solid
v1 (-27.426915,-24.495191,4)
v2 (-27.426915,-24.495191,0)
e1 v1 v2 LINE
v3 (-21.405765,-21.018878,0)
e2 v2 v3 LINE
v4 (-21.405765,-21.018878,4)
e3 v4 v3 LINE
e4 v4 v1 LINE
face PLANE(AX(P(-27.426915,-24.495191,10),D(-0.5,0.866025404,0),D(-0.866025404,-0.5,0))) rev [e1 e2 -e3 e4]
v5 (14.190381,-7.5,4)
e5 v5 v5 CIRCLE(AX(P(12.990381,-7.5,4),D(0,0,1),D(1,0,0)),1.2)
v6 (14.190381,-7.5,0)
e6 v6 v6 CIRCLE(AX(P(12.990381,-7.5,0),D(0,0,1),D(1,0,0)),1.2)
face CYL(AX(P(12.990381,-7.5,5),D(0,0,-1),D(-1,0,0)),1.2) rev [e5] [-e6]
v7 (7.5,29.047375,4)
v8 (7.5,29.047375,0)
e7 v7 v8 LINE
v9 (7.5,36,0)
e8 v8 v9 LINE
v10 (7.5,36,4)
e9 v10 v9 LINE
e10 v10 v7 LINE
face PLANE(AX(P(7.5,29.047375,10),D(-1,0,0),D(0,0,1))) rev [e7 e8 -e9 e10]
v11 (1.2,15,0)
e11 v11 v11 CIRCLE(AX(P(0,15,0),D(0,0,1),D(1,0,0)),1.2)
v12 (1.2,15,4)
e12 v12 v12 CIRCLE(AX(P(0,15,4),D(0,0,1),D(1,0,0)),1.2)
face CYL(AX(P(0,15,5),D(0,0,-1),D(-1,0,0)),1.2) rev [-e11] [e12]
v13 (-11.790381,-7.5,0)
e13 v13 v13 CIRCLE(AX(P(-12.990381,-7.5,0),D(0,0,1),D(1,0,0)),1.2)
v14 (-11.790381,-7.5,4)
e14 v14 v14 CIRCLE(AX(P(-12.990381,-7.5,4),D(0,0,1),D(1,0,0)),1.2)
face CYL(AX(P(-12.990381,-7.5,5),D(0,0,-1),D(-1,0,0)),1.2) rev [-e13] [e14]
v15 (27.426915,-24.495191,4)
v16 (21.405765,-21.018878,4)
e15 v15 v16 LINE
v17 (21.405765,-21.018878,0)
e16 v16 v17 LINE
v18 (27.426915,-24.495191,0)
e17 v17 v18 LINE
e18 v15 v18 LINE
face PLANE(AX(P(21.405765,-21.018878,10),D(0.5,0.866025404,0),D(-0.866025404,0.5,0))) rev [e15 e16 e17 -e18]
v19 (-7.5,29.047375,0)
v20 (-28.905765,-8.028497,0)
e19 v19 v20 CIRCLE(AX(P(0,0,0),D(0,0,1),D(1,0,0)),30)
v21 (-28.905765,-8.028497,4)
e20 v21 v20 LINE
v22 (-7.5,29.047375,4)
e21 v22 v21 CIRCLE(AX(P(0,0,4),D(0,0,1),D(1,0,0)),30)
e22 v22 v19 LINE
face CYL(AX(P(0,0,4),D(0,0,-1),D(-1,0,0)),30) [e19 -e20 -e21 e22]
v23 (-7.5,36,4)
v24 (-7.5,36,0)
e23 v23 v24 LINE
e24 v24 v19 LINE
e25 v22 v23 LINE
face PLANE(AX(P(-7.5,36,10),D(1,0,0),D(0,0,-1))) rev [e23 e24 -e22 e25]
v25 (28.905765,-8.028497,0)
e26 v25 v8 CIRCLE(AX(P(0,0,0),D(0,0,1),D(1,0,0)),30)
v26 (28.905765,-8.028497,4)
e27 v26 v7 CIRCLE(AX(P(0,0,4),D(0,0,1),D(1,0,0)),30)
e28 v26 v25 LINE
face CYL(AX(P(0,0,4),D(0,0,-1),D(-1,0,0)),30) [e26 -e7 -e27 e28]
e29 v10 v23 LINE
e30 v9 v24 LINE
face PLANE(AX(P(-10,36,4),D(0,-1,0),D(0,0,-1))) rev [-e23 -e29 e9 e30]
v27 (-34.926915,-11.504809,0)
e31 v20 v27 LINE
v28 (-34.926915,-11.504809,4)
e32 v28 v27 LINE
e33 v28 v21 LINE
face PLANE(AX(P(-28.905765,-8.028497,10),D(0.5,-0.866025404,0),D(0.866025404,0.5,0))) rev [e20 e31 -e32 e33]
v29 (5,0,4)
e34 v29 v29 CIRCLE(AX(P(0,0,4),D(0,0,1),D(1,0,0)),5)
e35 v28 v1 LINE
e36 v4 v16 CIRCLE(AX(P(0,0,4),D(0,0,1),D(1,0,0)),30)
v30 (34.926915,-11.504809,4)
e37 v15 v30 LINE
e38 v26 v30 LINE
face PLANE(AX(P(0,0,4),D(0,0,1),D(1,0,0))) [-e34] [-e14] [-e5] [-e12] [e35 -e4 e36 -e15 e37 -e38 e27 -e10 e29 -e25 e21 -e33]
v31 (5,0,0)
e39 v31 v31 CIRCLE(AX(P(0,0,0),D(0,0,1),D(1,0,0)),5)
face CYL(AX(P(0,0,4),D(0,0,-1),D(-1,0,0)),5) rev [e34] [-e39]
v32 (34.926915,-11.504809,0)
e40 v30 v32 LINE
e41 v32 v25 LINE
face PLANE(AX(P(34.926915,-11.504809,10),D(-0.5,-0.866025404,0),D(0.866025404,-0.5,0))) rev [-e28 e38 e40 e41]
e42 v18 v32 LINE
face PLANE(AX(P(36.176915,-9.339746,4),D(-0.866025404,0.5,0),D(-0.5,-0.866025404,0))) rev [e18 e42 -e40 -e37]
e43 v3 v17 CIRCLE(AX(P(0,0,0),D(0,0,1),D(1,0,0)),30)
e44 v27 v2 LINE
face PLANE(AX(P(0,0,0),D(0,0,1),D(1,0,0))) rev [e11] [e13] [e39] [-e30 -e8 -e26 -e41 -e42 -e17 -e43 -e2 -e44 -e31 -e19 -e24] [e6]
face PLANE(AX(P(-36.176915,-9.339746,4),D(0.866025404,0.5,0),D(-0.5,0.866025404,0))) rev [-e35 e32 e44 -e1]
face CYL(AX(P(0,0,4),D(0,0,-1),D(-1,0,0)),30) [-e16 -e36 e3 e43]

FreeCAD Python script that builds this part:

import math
import FreeCAD as App
import Part
import Sketcher
Q = App.Units.Quantity

doc = App.newDocument("Part")
body = doc.addObject("PartDesign::Body", "Body")

sketch1 = doc.addObject("Sketcher::SketchObject", "Sketch")
body.addObject(sketch1)
sketch1.AttachmentSupport = (doc.XY_Plane, [""])
sketch1.MapMode = "FlatFace"
sketch1.addGeometry([
    Part.LineSegment(App.Vector(10, 28, 0), App.Vector(10, 36, 0)),
    Part.LineSegment(App.Vector(10, 36, 0), App.Vector(-10, 36, 0)),
    Part.LineSegment(App.Vector(-10, 36, 0), App.Vector(-10, 28, 0)),
    Part.ArcOfCircle(Part.Circle(App.Vector(0, 0, 0), App.Vector(0, 0, 1), 30), math.radians(109), math.radians(191)),
    Part.LineSegment(App.Vector(-29, -5, 0), App.Vector(-36, -9, 0)),
    Part.LineSegment(App.Vector(-36, -9, 0), App.Vector(-26, -27, 0)),
    Part.LineSegment(App.Vector(-26, -27, 0), App.Vector(-19, -23, 0)),
    Part.ArcOfCircle(Part.Circle(App.Vector(0, 0, 0), App.Vector(0, 0, 1), 30), math.radians(-131), math.radians(-49)),
    Part.LineSegment(App.Vector(19, -23, 0), App.Vector(26, -27, 0)),
    Part.LineSegment(App.Vector(26, -27, 0), App.Vector(36, -9, 0)),
    Part.LineSegment(App.Vector(36, -9, 0), App.Vector(29, -5, 0)),
    Part.ArcOfCircle(Part.Circle(App.Vector(0, 0, 0), App.Vector(0, 0, 1), 30), math.radians(-11), math.radians(71)),
    Part.Circle(App.Vector(0, 0, 0), App.Vector(0, 0, 1), 5),
], False)
sketch1.addConstraint([
    Sketcher.Constraint("Coincident", 0, 2, 1, 1),
    Sketcher.Constraint("Coincident", 1, 2, 2, 1),
    Sketcher.Constraint("Coincident", 2, 2, 3, 1),
    Sketcher.Constraint("Coincident", 3, 2, 4, 1),
    Sketcher.Constraint("Coincident", 4, 2, 5, 1),
    Sketcher.Constraint("Coincident", 5, 2, 6, 1),
    Sketcher.Constraint("Coincident", 6, 2, 7, 1),
    Sketcher.Constraint("Coincident", 7, 2, 8, 1),
    Sketcher.Constraint("Coincident", 8, 2, 9, 1),
    Sketcher.Constraint("Coincident", 9, 2, 10, 1),
    Sketcher.Constraint("Coincident", 10, 2, 11, 1),
    Sketcher.Constraint("Coincident", 11, 2, 0, 1),
    Sketcher.Constraint("Vertical", 0),
    Sketcher.Constraint("Horizontal", 1),
    Sketcher.Constraint("Vertical", 2),
    Sketcher.Constraint("Coincident", 3, 3, -1, 1),
    Sketcher.Constraint("Coincident", 7, 3, -1, 1),
    Sketcher.Constraint("Coincident", 11, 3, -1, 1),
    Sketcher.Constraint("Coincident", 12, 3, -1, 1),
    Sketcher.Constraint("Equal", 3, 7),
    Sketcher.Constraint("Equal", 7, 11),
    Sketcher.Constraint("Symmetric", 5, 2, 8, 2, -2),
    Sketcher.Constraint("Symmetric", 4, 2, 9, 2, -2),
    Sketcher.Constraint("Perpendicular", 4, 5),
    Sketcher.Constraint("Perpendicular", 5, 6),
    Sketcher.Constraint("Perpendicular", 8, 9),
    Sketcher.Constraint("Perpendicular", 9, 10),
    Sketcher.Constraint("Horizontal", 2, 2, 11, 2),
    Sketcher.Constraint("Equal", 4, 6),
    Sketcher.Constraint("Diameter", 12, Q("10 mm")),
    Sketcher.Constraint("Radius", 3, Q("30 mm")),
    Sketcher.Constraint("DistanceX", 1, 2, 1, 1, Q("20 mm")),
    Sketcher.Constraint("Angle", 4, Q("-150 deg")),
    Sketcher.Constraint("Distance", 5, Q("20 mm")),
    Sketcher.Constraint("DistanceY", -1, 1, 0, 2, Q("36 mm")),
    Sketcher.Constraint("Distance", 4, Q("7.715729 mm")),
])
pad1 = doc.addObject("PartDesign::Pad", "Pad")
body.addObject(pad1)
pad1.Profile = sketch1
pad1.Length = 4

sketch2 = doc.addObject("Sketcher::SketchObject", "Sketch001")
body.addObject(sketch2)
sketch2.AttachmentSupport = (doc.XY_Plane, [""])
sketch2.MapMode = "FlatFace"
sketch2.addGeometry([
    Part.LineSegment(App.Vector(7.5, 29, 0), App.Vector(7.5, 36, 0)),
    Part.LineSegment(App.Vector(7.5, 36, 0), App.Vector(10, 36, 0)),
    Part.LineSegment(App.Vector(10, 36, 0), App.Vector(10, 28.3, 0)),
    Part.ArcOfCircle(Part.Circle(App.Vector(0, 0, 0), App.Vector(0, 0, 1), 30), math.radians(70.53), math.radians(75.52)),
    Part.LineSegment(App.Vector(-7.5, 36, 0), App.Vector(-7.5, 29, 0)),
    Part.ArcOfCircle(Part.Circle(App.Vector(0, 0, 0), App.Vector(0, 0, 1), 30), math.radians(104.48), math.radians(109.47)),
    Part.LineSegment(App.Vector(-10, 28.3, 0), App.Vector(-10, 36, 0)),
    Part.LineSegment(App.Vector(-10, 36, 0), App.Vector(-7.5, 36, 0)),
    Part.LineSegment(App.Vector(34.9, -11.5, 0), App.Vector(28.9, -8, 0)),
    Part.ArcOfCircle(Part.Circle(App.Vector(0, 0, 0), App.Vector(0, 0, 1), 30), math.radians(-15.52), math.radians(-10.53)),
    Part.LineSegment(App.Vector(29.5, -5.5, 0), App.Vector(36.2, -9.3, 0)),
    Part.LineSegment(App.Vector(36.2, -9.3, 0), App.Vector(34.9, -11.5, 0)),
    Part.LineSegment(App.Vector(27.4, -24.5, 0), App.Vector(26.2, -26.7, 0)),
    Part.LineSegment(App.Vector(26.2, -26.7, 0), App.Vector(19.5, -22.8, 0)),
    Part.ArcOfCircle(Part.Circle(App.Vector(0, 0, 0), App.Vector(0, 0, 1), 30), math.radians(-49.47), math.radians(-44.48)),
    Part.LineSegment(App.Vector(21.4, -21, 0), App.Vector(27.4, -24.5, 0)),
    Part.LineSegment(App.Vector(-34.9, -11.5, 0), App.Vector(-36.2, -9.3, 0)),
    Part.LineSegment(App.Vector(-36.2, -9.3, 0), App.Vector(-29.5, -5.5, 0)),
    Part.ArcOfCircle(Part.Circle(App.Vector(0, 0, 0), App.Vector(0, 0, 1), 30), math.radians(-169.47), math.radians(-164.48)),
    Part.LineSegment(App.Vector(-28.9, -8, 0), App.Vector(-34.9, -11.5, 0)),
    Part.LineSegment(App.Vector(-27.4, -24.5, 0), App.Vector(-21.4, -21, 0)),
    Part.ArcOfCircle(Part.Circle(App.Vector(0, 0, 0), App.Vector(0, 0, 1), 30), math.radians(-135.52), math.radians(-130.53)),
    Part.LineSegment(App.Vector(-19.5, -22.8, 0), App.Vector(-26.2, -26.7, 0)),
    Part.LineSegment(App.Vector(-26.2, -26.7, 0), App.Vector(-27.4, -24.5, 0)),
], False)
sketch2.addConstraint([
    Sketcher.Constraint("Coincident", 0, 2, 1, 1),
    Sketcher.Constraint("Coincident", 1, 2, 2, 1),
    Sketcher.Constraint("Coincident", 2, 2, 3, 1),
    Sketcher.Constraint("Coincident", 3, 2, 0, 1),
    Sketcher.Constraint("Coincident", 4, 2, 5, 1),
    Sketcher.Constraint("Coincident", 5, 2, 6, 1),
    Sketcher.Constraint("Coincident", 6, 2, 7, 1),
    Sketcher.Constraint("Coincident", 7, 2, 4, 1),
    Sketcher.Constraint("Coincident", 8, 2, 9, 1),
    Sketcher.Constraint("Coincident", 9, 2, 10, 1),
    Sketcher.Constraint("Coincident", 10, 2, 11, 1),
    Sketcher.Constraint("Coincident", 11, 2, 8, 1),
    Sketcher.Constraint("Coincident", 12, 2, 13, 1),
    Sketcher.Constraint("Coincident", 13, 2, 14, 1),
    Sketcher.Constraint("Coincident", 14, 2, 15, 1),
    Sketcher.Constraint("Coincident", 15, 2, 12, 1),
    Sketcher.Constraint("Coincident", 16, 2, 17, 1),
    Sketcher.Constraint("Coincident", 17, 2, 18, 1),
    Sketcher.Constraint("Coincident", 18, 2, 19, 1),
    Sketcher.Constraint("Coincident", 19, 2, 16, 1),
    Sketcher.Constraint("Coincident", 20, 2, 21, 1),
    Sketcher.Constraint("Coincident", 21, 2, 22, 1),
    Sketcher.Constraint("Coincident", 22, 2, 23, 1),
    Sketcher.Constraint("Coincident", 23, 2, 20, 1),
    Sketcher.Constraint("Vertical", 0),
    Sketcher.Constraint("Horizontal", 1),
    Sketcher.Constraint("Vertical", 2),
    Sketcher.Constraint("Vertical", 4),
    Sketcher.Constraint("Vertical", 6),
    Sketcher.Constraint("Horizontal", 7),
    Sketcher.Constraint("Coincident", 3, 3, -1, 1),
    Sketcher.Constraint("Coincident", 5, 3, -1, 1),
    Sketcher.Constraint("Coincident", 9, 3, -1, 1),
    Sketcher.Constraint("Coincident", 14, 3, -1, 1),
    Sketcher.Constraint("Coincident", 18, 3, -1, 1),
    Sketcher.Constraint("Coincident", 21, 3, -1, 1),
    Sketcher.Constraint("Equal", 3, 5),
    Sketcher.Constraint("Equal", 5, 9),
    Sketcher.Constraint("Equal", 9, 14),
    Sketcher.Constraint("Equal", 14, 18),
    Sketcher.Constraint("Equal", 18, 21),
    Sketcher.Constraint("Symmetric", 1, 2, 6, 2, -2),
    Sketcher.Constraint("Symmetric", 10, 2, 16, 2, -2),
    Sketcher.Constraint("Symmetric", 11, 2, 19, 2, -2),
    Sketcher.Constraint("Symmetric", 12, 2, 22, 2, -2),
    Sketcher.Constraint("Symmetric", 15, 2, 23, 2, -2),
    Sketcher.Constraint("Parallel", 8, 10),
    Sketcher.Constraint("Perpendicular", 10, 11),
    Sketcher.Constraint("Parallel", 11, 12),
    Sketcher.Constraint("Perpendicular", 12, 13),
    Sketcher.Constraint("Parallel", 13, 15),
    Sketcher.Constraint("Perpendicular", 16, 17),
    Sketcher.Constraint("Parallel", 17, 19),
    Sketcher.Constraint("Parallel", 19, 20),
    Sketcher.Constraint("Parallel", 20, 22),
    Sketcher.Constraint("Horizontal", 3, 2, 4, 2),
    Sketcher.Constraint("Equal", 11, 12),
    Sketcher.Constraint("Equal", 10, 13),
    Sketcher.Constraint("Equal", 8, 15),
    Sketcher.Constraint("Radius", 3, Q("30 mm")),
    Sketcher.Constraint("Angle", 8, Q("150 deg")),
    Sketcher.Constraint("DistanceX", 1, 1, 1, 2, Q("2.5 mm")),
    Sketcher.Constraint("DistanceY", -1, 1, 0, 2, Q("36 mm")),
    Sketcher.Constraint("DistanceX", -1, 1, 1, 2, Q("10 mm")),
    Sketcher.Constraint("DistanceX", 12, 2, 10, 2, Q("10 mm")),
    Sketcher.Constraint("Distance", 11, Q("2.5 mm")),
    Sketcher.Constraint("DistanceY", 15, 2, 13, 2, Q("1.692801 mm")),
])
pocket1 = doc.addObject("PartDesign::Pocket", "Pocket")
body.addObject(pocket1)
pocket1.Profile = sketch2
pocket1.Length = 10
pocket1.Reversed = True

sketch3 = doc.addObject("Sketcher::SketchObject", "Sketch002")
body.addObject(sketch3)
sketch3.AttachmentSupport = (doc.XY_Plane, [""])
sketch3.MapMode = "FlatFace"
sketch3.addGeometry([
    Part.Circle(App.Vector(0, 15, 0), App.Vector(0, 0, 1), 1.2),
    Part.Circle(App.Vector(-13, -7.5, 0), App.Vector(0, 0, 1), 1.2),
    Part.Circle(App.Vector(13, -7.5, 0), App.Vector(0, 0, 1), 1.2),
], False)
sketch3.addConstraint([
    Sketcher.Constraint("Equal", 0, 1),
    Sketcher.Constraint("Equal", 1, 2),
    Sketcher.Constraint("Symmetric", 1, 3, 2, 3, -2),
    Sketcher.Constraint("PointOnObject", 0, 3, -2),
    Sketcher.Constraint("Diameter", 0, Q("2.4 mm")),
    Sketcher.Constraint("DistanceY", -1, 1, 0, 3, Q("15 mm")),
    Sketcher.Constraint("DistanceY", 1, 3, -1, 1, Q("7.5 mm")),
    Sketcher.Constraint("DistanceX", 1, 3, -1, 1, Q("12.990381 mm")),
])
pocket2 = doc.addObject("PartDesign::Pocket", "Pocket001")
body.addObject(pocket2)
pocket2.Profile = sketch3
pocket2.Length = 10
pocket2.Midplane = True

doc.recompute()
